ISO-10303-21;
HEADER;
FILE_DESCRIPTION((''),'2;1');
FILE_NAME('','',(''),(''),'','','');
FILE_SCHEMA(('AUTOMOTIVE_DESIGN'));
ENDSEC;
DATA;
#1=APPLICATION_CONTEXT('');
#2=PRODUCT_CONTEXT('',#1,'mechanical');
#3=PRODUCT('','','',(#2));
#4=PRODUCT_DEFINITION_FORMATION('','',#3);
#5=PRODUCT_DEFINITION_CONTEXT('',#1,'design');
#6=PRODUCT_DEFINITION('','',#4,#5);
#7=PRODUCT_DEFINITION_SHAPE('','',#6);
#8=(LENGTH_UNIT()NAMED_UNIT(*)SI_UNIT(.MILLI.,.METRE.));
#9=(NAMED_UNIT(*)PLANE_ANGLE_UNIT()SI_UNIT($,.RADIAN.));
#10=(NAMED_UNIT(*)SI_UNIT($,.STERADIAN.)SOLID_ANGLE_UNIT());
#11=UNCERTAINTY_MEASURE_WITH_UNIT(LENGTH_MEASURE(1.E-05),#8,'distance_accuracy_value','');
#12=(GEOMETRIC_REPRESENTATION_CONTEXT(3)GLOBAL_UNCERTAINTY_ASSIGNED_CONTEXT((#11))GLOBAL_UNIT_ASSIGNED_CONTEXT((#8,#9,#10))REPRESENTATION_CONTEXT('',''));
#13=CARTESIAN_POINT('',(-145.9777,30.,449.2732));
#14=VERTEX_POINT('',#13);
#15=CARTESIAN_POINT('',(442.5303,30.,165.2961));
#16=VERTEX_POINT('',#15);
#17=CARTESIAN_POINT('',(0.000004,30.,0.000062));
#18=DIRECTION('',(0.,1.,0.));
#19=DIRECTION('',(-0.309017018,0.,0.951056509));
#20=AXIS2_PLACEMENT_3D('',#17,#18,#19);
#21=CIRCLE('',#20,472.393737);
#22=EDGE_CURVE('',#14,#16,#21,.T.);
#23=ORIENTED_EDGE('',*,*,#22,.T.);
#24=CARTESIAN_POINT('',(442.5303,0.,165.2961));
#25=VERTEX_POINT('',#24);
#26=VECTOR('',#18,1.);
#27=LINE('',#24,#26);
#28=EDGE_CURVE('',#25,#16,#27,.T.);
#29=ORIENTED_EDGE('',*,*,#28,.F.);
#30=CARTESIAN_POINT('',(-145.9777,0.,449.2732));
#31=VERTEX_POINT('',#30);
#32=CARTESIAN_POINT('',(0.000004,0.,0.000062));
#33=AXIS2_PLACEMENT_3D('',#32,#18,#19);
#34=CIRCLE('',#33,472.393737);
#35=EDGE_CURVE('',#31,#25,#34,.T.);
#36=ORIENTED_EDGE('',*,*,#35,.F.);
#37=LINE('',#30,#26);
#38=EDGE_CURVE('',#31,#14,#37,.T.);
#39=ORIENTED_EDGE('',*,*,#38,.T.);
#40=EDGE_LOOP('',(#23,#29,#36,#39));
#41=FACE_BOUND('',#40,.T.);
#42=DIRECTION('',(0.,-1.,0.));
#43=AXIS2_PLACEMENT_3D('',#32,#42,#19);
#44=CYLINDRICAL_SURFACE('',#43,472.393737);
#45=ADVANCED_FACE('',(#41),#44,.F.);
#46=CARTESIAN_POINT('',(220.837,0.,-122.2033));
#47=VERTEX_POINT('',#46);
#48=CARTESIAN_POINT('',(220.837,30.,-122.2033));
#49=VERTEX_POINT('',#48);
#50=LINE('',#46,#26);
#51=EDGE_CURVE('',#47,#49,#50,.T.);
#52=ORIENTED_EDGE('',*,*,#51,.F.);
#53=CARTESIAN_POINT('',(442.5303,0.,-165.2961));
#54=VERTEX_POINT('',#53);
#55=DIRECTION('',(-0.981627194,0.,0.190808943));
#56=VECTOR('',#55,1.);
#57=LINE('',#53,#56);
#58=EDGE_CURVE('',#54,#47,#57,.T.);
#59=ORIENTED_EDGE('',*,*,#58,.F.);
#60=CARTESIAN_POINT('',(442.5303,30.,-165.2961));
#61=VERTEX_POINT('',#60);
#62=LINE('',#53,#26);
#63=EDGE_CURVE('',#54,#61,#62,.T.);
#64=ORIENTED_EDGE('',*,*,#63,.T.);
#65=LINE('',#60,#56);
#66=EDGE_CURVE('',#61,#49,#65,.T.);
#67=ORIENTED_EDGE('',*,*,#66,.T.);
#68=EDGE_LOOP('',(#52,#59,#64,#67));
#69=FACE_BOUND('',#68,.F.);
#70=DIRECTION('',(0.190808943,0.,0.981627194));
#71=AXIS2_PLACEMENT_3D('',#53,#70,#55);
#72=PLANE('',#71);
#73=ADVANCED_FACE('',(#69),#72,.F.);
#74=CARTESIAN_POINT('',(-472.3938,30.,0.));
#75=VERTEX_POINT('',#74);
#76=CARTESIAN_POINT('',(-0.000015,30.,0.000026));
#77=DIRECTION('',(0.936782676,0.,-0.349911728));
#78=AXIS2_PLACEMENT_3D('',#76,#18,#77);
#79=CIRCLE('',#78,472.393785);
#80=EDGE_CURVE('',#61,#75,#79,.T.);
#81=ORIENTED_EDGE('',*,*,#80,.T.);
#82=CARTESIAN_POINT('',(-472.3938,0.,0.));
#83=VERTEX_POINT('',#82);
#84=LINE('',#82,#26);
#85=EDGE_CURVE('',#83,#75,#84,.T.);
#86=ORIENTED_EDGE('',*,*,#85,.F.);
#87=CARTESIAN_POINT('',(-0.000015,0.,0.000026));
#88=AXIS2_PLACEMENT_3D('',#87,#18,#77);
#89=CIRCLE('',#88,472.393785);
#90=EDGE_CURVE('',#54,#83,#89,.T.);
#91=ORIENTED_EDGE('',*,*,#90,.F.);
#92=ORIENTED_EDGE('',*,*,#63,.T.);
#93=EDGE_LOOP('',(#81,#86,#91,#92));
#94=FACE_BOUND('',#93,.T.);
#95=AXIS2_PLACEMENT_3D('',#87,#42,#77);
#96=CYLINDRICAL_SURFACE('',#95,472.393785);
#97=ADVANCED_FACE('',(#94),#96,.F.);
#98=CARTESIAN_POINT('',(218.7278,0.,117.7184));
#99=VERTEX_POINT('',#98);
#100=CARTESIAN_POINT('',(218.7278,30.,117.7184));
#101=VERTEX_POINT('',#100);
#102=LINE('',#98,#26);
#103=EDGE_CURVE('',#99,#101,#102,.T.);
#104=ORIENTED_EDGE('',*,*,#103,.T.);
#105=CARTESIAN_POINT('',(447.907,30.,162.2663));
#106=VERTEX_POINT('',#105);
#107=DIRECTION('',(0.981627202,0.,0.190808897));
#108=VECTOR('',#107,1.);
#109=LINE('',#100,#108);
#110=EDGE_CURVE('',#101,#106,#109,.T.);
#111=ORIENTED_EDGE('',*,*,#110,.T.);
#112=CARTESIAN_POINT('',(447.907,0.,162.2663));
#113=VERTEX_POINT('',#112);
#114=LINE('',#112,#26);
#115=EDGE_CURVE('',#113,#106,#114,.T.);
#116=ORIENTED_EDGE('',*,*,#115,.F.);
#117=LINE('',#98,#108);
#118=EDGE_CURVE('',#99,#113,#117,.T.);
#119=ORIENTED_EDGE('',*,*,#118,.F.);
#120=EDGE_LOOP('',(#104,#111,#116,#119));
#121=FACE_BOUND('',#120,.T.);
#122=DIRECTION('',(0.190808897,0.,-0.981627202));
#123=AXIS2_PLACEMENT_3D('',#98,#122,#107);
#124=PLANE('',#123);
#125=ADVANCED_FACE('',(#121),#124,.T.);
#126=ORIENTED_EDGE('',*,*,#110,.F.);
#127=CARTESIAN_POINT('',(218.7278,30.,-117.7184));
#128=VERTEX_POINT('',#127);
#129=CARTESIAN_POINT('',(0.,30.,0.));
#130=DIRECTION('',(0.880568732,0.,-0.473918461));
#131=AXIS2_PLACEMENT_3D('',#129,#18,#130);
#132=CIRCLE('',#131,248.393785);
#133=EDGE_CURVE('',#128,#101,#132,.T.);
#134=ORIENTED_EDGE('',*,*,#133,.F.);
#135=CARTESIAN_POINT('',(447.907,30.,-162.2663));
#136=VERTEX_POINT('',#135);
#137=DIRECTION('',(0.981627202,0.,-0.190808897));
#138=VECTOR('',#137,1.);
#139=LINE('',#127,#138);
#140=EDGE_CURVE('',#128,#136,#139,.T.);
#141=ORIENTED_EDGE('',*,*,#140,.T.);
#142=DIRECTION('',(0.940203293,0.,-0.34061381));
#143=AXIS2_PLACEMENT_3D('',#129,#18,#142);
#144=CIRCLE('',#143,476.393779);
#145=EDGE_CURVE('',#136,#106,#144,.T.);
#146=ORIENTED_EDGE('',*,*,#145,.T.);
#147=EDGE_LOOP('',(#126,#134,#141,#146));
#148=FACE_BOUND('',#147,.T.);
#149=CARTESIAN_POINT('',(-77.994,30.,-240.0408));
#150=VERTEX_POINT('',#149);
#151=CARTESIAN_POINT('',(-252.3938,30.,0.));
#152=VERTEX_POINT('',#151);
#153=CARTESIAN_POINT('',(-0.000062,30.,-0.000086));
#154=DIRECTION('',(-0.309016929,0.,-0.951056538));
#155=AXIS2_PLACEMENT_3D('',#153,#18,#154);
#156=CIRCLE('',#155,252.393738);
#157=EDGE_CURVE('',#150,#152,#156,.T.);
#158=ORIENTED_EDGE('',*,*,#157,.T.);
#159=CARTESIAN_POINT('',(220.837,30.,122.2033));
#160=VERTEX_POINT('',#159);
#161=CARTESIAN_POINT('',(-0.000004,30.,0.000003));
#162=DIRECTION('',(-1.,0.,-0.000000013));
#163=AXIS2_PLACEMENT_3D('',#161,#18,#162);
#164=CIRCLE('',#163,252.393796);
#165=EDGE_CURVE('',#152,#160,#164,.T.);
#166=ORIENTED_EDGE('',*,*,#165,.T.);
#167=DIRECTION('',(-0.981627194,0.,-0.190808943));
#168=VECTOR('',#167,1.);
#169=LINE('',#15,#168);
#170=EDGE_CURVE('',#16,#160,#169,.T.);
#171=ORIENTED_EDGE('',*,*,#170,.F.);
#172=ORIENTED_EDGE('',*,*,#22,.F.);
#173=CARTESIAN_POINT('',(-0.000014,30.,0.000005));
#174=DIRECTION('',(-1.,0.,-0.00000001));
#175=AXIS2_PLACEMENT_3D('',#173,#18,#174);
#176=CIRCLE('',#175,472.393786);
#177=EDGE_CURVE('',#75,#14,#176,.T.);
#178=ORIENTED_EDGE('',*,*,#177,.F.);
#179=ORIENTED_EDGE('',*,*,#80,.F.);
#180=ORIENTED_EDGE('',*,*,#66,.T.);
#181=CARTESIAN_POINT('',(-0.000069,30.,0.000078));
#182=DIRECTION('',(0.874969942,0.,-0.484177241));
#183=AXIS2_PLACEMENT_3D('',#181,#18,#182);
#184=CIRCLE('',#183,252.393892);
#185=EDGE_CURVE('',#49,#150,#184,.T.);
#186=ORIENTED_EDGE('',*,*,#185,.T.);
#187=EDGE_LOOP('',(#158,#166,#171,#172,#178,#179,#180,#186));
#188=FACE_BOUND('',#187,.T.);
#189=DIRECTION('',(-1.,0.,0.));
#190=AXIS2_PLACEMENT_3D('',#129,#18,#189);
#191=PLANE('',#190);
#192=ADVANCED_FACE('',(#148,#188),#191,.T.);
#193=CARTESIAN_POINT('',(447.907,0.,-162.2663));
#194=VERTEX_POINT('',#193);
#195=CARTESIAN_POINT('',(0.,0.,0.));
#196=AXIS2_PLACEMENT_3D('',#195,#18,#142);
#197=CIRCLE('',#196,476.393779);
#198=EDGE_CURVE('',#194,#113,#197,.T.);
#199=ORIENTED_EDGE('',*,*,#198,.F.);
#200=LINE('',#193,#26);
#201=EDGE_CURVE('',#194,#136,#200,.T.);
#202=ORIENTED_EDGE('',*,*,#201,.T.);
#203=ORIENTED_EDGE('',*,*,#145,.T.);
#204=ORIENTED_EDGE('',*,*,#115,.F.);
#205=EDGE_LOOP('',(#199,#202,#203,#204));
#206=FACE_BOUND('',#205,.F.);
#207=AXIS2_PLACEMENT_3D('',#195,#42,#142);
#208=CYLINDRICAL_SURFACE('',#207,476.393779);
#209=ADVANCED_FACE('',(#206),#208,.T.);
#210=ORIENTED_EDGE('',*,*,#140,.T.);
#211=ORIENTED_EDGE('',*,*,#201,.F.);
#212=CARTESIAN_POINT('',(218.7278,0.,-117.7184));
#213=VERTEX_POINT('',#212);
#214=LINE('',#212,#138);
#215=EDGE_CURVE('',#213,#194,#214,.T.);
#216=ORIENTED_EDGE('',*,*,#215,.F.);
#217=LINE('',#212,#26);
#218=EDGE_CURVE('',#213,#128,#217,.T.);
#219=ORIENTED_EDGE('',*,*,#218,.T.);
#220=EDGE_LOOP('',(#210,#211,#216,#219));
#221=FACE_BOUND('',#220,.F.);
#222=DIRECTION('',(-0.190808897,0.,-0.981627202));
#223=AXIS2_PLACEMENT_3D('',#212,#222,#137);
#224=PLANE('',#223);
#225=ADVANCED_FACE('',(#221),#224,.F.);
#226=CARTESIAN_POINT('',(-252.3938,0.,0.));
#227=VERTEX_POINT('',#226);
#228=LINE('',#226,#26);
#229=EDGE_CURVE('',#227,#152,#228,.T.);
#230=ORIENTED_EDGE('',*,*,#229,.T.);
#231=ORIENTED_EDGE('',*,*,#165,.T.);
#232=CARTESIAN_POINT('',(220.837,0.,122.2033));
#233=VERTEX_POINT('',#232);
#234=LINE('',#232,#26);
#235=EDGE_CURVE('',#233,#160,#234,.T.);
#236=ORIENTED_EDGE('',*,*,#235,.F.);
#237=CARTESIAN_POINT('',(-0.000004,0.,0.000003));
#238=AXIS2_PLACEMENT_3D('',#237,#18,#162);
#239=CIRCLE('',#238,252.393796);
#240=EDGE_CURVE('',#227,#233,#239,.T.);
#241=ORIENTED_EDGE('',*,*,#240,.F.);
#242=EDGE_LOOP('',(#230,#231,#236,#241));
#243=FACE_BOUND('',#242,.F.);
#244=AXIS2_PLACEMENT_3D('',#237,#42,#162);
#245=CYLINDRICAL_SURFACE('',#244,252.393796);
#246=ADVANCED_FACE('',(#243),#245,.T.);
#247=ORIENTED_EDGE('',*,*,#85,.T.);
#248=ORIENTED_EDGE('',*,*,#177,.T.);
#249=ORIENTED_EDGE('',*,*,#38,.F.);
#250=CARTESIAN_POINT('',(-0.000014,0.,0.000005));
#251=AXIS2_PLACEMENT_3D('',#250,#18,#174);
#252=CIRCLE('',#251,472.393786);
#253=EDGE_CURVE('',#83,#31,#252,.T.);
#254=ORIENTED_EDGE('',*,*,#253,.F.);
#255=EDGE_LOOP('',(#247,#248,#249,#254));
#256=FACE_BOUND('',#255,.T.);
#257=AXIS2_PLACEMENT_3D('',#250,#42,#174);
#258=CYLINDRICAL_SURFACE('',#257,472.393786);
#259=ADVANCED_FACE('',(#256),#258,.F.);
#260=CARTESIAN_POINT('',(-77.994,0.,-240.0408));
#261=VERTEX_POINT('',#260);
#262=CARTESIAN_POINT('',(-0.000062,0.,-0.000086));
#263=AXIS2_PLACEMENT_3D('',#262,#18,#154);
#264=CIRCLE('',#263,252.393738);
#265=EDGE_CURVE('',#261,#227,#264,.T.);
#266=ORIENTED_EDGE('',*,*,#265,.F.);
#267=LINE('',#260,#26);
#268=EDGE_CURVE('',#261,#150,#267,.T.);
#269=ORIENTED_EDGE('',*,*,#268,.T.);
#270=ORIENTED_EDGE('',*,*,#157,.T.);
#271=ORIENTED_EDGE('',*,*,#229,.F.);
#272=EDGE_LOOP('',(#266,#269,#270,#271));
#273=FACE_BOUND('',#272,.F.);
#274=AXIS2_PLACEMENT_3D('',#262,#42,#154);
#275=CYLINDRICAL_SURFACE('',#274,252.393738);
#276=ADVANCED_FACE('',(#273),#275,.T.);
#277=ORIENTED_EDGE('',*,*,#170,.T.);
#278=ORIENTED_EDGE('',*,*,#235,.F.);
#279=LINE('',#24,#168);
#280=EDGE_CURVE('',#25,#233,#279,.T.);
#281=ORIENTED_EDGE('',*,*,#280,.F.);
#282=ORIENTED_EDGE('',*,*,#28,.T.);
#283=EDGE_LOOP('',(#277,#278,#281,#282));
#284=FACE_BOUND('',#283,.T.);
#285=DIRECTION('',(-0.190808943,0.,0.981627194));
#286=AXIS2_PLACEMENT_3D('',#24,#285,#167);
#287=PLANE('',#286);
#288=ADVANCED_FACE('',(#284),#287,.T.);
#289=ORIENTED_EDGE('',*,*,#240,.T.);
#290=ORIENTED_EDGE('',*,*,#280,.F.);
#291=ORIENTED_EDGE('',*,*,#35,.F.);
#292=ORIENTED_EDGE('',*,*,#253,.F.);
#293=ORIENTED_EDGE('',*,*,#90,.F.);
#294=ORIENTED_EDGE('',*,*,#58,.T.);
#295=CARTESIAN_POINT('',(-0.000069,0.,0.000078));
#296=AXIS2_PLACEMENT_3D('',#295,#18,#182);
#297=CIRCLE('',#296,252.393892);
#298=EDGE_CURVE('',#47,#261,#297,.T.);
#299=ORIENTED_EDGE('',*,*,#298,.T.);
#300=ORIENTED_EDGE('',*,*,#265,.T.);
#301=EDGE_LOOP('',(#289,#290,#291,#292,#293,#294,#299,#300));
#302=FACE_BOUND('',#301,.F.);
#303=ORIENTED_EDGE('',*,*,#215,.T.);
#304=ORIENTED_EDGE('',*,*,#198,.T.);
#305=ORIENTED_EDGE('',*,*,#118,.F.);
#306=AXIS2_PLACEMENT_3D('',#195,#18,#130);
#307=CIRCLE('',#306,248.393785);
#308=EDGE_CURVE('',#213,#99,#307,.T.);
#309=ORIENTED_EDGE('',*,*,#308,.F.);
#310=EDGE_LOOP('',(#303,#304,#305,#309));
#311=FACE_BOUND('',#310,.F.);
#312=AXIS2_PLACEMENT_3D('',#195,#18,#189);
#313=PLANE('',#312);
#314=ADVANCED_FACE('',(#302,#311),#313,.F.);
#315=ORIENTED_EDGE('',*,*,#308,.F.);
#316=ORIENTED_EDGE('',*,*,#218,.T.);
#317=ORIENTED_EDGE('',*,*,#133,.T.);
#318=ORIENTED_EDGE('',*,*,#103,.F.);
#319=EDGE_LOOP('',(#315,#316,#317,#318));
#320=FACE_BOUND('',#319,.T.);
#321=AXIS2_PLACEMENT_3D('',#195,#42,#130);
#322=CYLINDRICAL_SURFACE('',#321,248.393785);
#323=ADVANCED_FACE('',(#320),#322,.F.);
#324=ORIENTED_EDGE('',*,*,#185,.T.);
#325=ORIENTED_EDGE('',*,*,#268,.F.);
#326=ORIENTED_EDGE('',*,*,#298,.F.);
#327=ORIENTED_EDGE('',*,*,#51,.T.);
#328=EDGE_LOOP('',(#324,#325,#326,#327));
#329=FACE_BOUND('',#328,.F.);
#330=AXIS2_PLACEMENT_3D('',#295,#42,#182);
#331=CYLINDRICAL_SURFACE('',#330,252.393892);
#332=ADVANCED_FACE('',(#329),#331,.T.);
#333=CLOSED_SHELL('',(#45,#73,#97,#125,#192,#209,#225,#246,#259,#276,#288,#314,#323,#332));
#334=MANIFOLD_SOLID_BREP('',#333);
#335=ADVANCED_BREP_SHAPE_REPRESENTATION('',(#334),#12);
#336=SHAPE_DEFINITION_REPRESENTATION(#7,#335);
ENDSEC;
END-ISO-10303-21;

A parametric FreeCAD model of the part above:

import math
import FreeCAD as App
import Part
import Sketcher

V = App.Vector
Q = App.Units.Quantity

doc = App.newDocument("Part")
params = doc.addObject("Spreadsheet::Sheet", "Params")
for row, (alias, value) in enumerate([
    ("pad1_length", "30 mm"),
], start=1):
    params.set(f"A{row}", alias)
    params.set(f"B{row}", "=" + value)
    params.setAlias(f"B{row}", alias)

body = doc.addObject("PartDesign::Body", "Body")

# Sketch on XZ plane
sketch1 = body.newObject("Sketcher::SketchObject", "Sketch")
sketch1.AttachmentSupport = (doc.getObject("XZ_Plane"), [""])
sketch1.MapMode = "FlatFace"
sketch1.addGeometry([
    Part.ArcOfCircle(Part.Circle(V(0, 0, 0), V(0, 0, 1), 248), math.radians(28), math.radians(332)),  # 0
    Part.LineSegment(V(219, -118, 0), V(448, -162, 0)),  # 1
    Part.ArcOfCircle(Part.Circle(V(0, 0, 0), V(0, 0, 1), 476), math.radians(20), math.radians(340)),  # 2
    Part.LineSegment(V(448, 162, 0), V(219, 118, 0)),  # 3
    Part.ArcOfCircle(Part.Circle(V(0, 0, 0), V(0, 0, 1), 472), math.radians(108), math.radians(180)),  # 4
    Part.ArcOfCircle(Part.Circle(V(0, 0, 0), V(0, 0, 1), 472), math.radians(180), math.radians(340)),  # 5
    Part.LineSegment(V(443, -165, 0), V(221, -122, 0)),  # 6
    Part.ArcOfCircle(Part.Circle(V(0, 0, 0), V(0, 0, 1), 252), math.radians(-108), math.radians(-29)),  # 7
    Part.ArcOfCircle(Part.Circle(V(0, 0, 0), V(0, 0, 1), 252), math.radians(180), math.radians(252)),  # 8
    Part.ArcOfCircle(Part.Circle(V(0, 0, 0), V(0, 0, 1), 252), math.radians(29), math.radians(180)),  # 9
    Part.LineSegment(V(221, 122, 0), V(443, 165, 0)),  # 10
    Part.ArcOfCircle(Part.Circle(V(0, 0, 0), V(0, 0, 1), 472), math.radians(20), math.radians(108)),  # 11
], False)
sketch1.addConstraint([
    Sketcher.Constraint("Coincident", 0, 2, 1, 1),
    Sketcher.Constraint("Coincident", 1, 2, 2, 2),
    Sketcher.Constraint("Coincident", 2, 1, 3, 1),
    Sketcher.Constraint("Coincident", 3, 2, 0, 1),
    Sketcher.Constraint("Tangent", 4, 2, 5, 1),
    Sketcher.Constraint("Coincident", 5, 2, 6, 1),
    Sketcher.Constraint("Coincident", 6, 2, 7, 2),
    Sketcher.Constraint("Tangent", 7, 1, 8, 2),
    Sketcher.Constraint("Tangent", 8, 1, 9, 2),
    Sketcher.Constraint("Coincident", 9, 1, 10, 1),
    Sketcher.Constraint("Coincident", 10, 2, 11, 1),
    Sketcher.Constraint("Coincident", 11, 2, 4, 1),
    Sketcher.Constraint("Coincident", 0, 3, -1, 1),
    Sketcher.Constraint("Coincident", 2, 3, -1, 1),
    Sketcher.Constraint("Coincident", 4, 3, -1, 1),
    Sketcher.Constraint("Coincident", 7, 3, -1, 1),
    Sketcher.Constraint("Coincident", 9, 3, -1, 1),
    Sketcher.Constraint("Coincident", 11, 3, -1, 1),
    Sketcher.Constraint("Equal", 4, 5),
    Sketcher.Constraint("PointOnObject", 4, 2, -1),
    Sketcher.Constraint("PointOnObject", 8, 1, -1),
    Sketcher.Constraint("Parallel", 1, 6),
    Sketcher.Constraint("Parallel", 3, 10),
    Sketcher.Constraint("Vertical", 1, 2, 2, 1),
    Sketcher.Constraint("Vertical", 0, 2, 3, 2),
    Sketcher.Constraint("Vertical", 6, 2, 9, 1),
    Sketcher.Constraint("Angle", 1, Q("-11 deg")),
    Sketcher.Constraint("DistanceX", 4, 2, 8, 1, Q("220 mm")),
    Sketcher.Constraint("Radius", 0, Q("248.3938 mm")),
    Sketcher.Constraint("Radius", 2, Q("476.3938 mm")),
    Sketcher.Constraint("Radius", 4, Q("472.3938 mm")),
    Sketcher.Constraint("DistanceX", 6, 2, 1, 2, Q("227.07 mm")),
    Sketcher.Constraint("DistanceX", -1, 1, 1, 2, Q("447.907 mm")),
    Sketcher.Constraint("DistanceX", 7, 1, -1, 1, Q("77.994 mm")),
    Sketcher.Constraint("DistanceX", 8, 1, 11, 2, Q("106.416 mm")),
])
pad1 = body.newObject("PartDesign::Pad", "Pad")
pad1.Profile = sketch1
pad1.setExpression("Length", "Params.pad1_length")
pad1.Reversed = True

doc.recompute()
